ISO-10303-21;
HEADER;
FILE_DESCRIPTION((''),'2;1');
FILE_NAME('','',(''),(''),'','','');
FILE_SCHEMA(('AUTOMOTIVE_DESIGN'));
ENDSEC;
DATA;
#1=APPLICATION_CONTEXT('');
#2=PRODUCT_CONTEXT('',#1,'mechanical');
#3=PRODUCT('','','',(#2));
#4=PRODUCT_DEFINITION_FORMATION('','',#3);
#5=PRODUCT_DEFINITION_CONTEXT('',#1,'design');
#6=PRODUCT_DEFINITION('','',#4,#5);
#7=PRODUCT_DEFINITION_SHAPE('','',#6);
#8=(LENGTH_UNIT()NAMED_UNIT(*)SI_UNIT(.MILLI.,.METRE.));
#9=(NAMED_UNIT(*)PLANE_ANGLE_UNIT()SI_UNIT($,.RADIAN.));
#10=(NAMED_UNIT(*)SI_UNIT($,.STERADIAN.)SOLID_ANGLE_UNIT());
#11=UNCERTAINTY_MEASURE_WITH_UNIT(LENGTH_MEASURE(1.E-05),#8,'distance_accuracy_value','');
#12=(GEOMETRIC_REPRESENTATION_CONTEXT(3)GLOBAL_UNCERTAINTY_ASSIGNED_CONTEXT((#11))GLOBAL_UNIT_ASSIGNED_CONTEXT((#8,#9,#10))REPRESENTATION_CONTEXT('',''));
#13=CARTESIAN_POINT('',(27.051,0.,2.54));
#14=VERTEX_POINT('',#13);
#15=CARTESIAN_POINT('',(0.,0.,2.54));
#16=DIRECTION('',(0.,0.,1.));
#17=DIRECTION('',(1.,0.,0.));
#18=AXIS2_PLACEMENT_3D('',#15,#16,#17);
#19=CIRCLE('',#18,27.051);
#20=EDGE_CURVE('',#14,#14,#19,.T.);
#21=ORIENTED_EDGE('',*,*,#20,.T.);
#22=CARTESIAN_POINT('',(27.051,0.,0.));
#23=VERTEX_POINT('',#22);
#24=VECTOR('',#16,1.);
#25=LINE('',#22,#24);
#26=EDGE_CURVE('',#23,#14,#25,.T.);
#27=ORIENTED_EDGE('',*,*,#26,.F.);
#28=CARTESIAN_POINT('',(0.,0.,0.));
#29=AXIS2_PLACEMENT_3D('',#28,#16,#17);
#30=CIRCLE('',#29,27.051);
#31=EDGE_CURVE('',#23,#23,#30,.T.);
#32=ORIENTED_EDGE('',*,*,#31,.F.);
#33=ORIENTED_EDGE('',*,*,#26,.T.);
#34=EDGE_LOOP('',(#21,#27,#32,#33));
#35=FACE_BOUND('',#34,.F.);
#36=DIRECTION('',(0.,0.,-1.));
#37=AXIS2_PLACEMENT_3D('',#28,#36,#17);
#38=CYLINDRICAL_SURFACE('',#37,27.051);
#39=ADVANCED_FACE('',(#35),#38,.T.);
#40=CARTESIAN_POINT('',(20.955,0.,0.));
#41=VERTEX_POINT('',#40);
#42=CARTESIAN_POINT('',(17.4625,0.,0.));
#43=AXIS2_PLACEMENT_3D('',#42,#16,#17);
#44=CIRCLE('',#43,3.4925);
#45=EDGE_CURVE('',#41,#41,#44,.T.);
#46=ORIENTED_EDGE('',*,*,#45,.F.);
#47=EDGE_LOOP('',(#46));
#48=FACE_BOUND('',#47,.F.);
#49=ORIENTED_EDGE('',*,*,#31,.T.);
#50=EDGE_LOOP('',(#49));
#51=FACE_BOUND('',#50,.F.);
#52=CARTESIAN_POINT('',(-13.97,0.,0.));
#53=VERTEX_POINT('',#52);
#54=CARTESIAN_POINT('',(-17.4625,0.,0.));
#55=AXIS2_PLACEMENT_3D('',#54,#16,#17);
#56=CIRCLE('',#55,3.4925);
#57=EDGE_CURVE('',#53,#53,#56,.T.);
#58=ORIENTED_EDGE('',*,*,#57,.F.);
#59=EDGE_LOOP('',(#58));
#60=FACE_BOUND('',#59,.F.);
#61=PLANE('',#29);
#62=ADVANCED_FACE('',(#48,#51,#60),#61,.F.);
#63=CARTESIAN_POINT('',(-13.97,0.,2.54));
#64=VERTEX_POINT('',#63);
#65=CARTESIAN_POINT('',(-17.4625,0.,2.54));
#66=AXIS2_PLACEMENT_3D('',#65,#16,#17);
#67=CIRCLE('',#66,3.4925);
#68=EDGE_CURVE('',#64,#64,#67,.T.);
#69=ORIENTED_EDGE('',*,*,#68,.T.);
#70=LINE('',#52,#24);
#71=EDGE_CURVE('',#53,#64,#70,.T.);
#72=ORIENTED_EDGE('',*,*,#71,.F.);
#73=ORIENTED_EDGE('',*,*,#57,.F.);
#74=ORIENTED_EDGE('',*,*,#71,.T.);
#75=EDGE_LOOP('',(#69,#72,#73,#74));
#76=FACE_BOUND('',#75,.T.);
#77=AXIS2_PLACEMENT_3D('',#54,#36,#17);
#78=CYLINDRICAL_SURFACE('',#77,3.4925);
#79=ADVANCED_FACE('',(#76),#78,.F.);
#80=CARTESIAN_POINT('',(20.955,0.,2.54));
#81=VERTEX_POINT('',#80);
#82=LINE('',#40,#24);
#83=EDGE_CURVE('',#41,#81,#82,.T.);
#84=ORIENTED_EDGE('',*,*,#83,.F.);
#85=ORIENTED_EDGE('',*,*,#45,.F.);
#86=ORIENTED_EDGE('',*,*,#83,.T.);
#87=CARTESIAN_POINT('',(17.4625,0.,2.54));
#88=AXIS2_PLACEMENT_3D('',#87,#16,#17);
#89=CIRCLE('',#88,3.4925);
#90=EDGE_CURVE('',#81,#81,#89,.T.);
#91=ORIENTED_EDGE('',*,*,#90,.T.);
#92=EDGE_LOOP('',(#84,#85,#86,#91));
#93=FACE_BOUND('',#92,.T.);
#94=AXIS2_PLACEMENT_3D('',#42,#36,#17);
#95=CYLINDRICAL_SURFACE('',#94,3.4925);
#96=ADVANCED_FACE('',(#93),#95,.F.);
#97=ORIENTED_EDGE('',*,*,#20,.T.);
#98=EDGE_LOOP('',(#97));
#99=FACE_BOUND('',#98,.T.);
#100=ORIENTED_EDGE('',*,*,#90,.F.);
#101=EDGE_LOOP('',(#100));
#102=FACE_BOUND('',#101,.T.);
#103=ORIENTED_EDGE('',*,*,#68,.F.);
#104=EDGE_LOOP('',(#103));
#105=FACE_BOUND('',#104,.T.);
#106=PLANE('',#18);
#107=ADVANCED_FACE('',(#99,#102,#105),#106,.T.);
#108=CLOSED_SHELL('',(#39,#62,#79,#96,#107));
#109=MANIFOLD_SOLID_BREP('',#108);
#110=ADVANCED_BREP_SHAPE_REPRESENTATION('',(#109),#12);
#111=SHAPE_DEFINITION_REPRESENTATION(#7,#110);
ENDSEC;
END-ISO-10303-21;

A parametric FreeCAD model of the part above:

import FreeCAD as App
import Part
import Sketcher
Q = App.Units.Quantity

doc = App.newDocument("Part")
params = doc.addObject("Spreadsheet::Sheet", "Params")
for row, (alias, value) in enumerate([
    ("sketch1_diameter", "2.13 in"),
    ("sketch1_diameter2", "0.275 in"),
    ("pad1_length", "0.1 in"),
], start=1):
    params.set(f"A{row}", alias)
    params.set(f"B{row}", "=" + value)
    params.setAlias(f"B{row}", alias)

body = doc.addObject("PartDesign::Body", "Body")

sketch1 = body.newObject("Sketcher::SketchObject", "Sketch")
sketch1.AttachmentSupport = (doc.getObject("XY_Plane"), [""])
sketch1.MapMode = "FlatFace"
sketch1.addGeometry(Part.Circle(App.Vector(0, 0, 0), App.Vector(0, 0, 1), 27.051), False)
sketch1.addGeometry(Part.Circle(App.Vector(-17.4625, 0, 0), App.Vector(0, 0, 1), 3.4925), False)
sketch1.addGeometry(Part.Circle(App.Vector(17.4625, 0, 0), App.Vector(0, 0, 1), 3.4925), False)
sketch1.addConstraint(Sketcher.Constraint("Coincident", 0, 3, -1, 1))
sketch1.addConstraint(Sketcher.Constraint("Equal", 1, 2))
sketch1.addConstraint(Sketcher.Constraint("Symmetric", 1, 3, 2, 3, -1, 1))
sketch1.addConstraint(Sketcher.Constraint("PointOnObject", 1, 3, -1))
sketch1.addConstraint(Sketcher.Constraint("Diameter", 0, Q("2.13 in")))
sketch1.addConstraint(Sketcher.Constraint("Diameter", 1, Q("0.275 in")))
sketch1.addConstraint(Sketcher.Constraint("DistanceX", 1, 3, -1, 1, Q("0.6875 in")))
sketch1.setExpression("Constraints[4]", "Params.sketch1_diameter")
sketch1.setExpression("Constraints[5]", "Params.sketch1_diameter2")
pad1 = body.newObject("PartDesign::Pad", "Pad")
pad1.Profile = sketch1
pad1.setExpression("Length", "Params.pad1_length")

doc.recompute()
